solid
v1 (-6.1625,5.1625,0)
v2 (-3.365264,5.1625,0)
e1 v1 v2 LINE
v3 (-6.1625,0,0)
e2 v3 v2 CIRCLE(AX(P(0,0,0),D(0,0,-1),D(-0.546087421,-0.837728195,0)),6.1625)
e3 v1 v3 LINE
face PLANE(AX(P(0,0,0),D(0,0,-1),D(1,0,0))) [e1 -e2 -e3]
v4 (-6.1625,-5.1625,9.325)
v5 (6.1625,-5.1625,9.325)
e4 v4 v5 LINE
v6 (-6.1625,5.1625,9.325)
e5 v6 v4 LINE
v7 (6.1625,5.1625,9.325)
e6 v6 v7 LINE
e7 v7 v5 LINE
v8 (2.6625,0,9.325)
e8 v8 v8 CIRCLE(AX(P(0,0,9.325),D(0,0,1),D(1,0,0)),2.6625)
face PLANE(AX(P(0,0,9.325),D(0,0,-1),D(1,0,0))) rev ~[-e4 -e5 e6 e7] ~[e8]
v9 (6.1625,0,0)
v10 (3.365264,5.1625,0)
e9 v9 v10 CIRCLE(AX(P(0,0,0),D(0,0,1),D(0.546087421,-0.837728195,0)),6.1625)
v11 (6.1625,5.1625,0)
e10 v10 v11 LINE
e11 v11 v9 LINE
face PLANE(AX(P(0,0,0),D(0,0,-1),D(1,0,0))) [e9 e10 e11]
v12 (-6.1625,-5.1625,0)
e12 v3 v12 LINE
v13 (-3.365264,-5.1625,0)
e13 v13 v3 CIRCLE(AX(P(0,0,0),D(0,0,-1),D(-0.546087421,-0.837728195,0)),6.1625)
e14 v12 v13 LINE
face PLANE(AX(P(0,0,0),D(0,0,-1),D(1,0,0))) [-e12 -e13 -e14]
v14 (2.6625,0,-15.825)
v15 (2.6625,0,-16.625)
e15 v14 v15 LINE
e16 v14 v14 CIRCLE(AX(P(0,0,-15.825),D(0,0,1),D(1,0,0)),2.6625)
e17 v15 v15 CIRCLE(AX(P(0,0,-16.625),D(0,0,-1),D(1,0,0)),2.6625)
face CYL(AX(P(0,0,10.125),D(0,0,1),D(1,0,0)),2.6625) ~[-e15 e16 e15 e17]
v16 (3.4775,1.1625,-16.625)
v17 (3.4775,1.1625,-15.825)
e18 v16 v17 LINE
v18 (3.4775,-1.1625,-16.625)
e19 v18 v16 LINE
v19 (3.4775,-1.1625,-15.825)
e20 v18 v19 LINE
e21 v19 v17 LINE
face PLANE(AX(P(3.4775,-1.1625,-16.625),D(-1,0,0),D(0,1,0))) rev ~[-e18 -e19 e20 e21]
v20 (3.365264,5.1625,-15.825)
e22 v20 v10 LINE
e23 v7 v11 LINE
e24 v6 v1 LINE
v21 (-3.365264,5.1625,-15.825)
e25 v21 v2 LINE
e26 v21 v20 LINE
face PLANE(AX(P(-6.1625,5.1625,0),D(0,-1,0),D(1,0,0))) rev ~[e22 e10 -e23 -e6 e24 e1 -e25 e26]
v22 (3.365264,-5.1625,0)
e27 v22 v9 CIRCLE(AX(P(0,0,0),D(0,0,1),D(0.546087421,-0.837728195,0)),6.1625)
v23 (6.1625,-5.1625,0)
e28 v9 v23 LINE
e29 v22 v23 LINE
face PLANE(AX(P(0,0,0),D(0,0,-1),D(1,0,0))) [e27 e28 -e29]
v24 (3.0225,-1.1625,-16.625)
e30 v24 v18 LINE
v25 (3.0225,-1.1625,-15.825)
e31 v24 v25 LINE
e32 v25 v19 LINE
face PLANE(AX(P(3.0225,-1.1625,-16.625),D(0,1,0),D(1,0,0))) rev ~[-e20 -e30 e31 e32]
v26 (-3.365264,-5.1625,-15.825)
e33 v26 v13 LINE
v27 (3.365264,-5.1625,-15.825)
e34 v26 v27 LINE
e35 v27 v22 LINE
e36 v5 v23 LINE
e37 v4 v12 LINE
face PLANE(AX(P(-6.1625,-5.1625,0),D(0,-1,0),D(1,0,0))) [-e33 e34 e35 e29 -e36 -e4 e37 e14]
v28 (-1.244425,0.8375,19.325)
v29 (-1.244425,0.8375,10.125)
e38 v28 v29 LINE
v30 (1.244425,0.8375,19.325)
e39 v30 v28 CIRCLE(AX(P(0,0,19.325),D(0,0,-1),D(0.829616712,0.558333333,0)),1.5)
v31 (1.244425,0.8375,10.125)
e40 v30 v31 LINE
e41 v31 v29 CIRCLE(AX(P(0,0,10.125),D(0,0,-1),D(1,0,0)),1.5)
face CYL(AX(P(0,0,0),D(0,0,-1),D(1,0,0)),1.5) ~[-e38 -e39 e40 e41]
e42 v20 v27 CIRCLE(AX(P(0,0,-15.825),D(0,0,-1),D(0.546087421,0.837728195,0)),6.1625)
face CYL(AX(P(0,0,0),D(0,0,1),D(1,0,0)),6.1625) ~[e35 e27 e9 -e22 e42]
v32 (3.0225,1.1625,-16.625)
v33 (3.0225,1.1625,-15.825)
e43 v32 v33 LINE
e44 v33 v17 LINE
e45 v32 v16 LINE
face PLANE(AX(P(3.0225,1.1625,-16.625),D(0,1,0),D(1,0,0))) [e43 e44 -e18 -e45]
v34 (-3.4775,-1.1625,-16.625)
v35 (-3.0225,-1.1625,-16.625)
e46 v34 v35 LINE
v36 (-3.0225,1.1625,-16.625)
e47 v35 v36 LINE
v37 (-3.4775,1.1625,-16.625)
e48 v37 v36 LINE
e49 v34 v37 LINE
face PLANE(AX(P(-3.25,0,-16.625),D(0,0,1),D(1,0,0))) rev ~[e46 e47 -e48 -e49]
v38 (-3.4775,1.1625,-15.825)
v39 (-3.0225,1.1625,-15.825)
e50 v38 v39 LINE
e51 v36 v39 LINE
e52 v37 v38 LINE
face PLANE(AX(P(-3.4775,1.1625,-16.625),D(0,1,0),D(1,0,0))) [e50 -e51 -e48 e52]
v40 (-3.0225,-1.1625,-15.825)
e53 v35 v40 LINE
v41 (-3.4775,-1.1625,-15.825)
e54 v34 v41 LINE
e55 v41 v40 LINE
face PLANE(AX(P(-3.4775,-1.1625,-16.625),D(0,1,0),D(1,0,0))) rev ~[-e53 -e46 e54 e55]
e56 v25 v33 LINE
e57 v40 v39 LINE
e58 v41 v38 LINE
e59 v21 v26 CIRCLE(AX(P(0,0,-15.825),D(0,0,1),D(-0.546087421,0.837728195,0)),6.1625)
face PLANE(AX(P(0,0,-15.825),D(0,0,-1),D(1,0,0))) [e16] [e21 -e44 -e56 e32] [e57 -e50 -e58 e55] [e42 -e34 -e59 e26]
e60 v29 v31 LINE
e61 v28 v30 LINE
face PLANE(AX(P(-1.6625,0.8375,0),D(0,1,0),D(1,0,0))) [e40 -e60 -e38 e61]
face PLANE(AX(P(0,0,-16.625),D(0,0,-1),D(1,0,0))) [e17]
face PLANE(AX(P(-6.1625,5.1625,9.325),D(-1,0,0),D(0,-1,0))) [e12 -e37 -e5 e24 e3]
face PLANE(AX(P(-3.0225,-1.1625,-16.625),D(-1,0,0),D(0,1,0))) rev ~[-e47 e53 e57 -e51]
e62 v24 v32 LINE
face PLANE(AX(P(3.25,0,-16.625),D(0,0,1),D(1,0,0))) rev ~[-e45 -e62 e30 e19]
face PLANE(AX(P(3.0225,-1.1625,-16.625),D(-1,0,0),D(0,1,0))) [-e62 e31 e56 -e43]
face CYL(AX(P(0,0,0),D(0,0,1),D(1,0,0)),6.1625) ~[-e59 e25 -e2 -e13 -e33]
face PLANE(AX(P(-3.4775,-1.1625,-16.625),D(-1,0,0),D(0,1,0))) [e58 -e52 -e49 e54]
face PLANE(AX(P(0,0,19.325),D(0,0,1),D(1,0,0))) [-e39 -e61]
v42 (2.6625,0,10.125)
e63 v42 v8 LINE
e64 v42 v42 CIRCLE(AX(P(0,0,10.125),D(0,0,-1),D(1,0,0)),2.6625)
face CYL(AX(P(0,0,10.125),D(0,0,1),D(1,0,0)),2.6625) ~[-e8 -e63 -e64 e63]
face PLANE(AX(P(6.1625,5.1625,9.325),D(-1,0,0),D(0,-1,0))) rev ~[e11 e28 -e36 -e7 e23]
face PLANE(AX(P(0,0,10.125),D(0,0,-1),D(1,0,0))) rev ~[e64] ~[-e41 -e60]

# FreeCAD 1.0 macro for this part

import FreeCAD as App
import Part
import Sketcher

V = App.Vector
Q = App.Units.Quantity


def add_polygon(sketch, points):
    """Adds a closed chain of lines whose ends are joined by coincident constraints."""
    first, n = sketch.GeometryCount, len(points)
    for a, b in zip(points, points[1:] + points[:1]):
        sketch.addGeometry(Part.LineSegment(App.Vector(*a, 0), App.Vector(*b, 0)), False)
    for i in range(n):
        sketch.addConstraint(Sketcher.Constraint("Coincident", first + i, 2, first + (i + 1) % n, 1))

doc = App.newDocument("Part")
params = doc.addObject("Spreadsheet::Sheet", "Params")
for row, (alias, value) in enumerate([
    ("pad1_length", "19.325 mm"),
    ("sketch2_diameter", "3 mm"),
    ("pad2_length", "19.325 mm"),
    ("pad3_length", "16.625 mm"),
    ("pad4_length", "16.625 mm"),
    ("pad5_length", "26.75 mm"),
    ("pad6_length", "15.825 mm"),
    ("pad7_length", "15.825 mm"),
    ("pad8_length", "9.325 mm"),
], start=1):
    params.set(f"A{row}", alias)
    params.set(f"B{row}", "=" + value)
    params.setAlias(f"B{row}", alias)

body = doc.addObject("PartDesign::Body", "Body")

# Sketch on XY plane
sketch1 = doc.addObject("Sketcher::SketchObject", "Sketch")
body.addObject(sketch1)
sketch1.AttachmentSupport = (doc.XY_Plane, [""])
sketch1.MapMode = "FlatFace"
add_polygon(sketch1, [(-1.7, 4.2), (-1.7, 0.8), (1.7, 0.8), (1.7, 4.2)])  # lines 0-3
sketch1.addConstraint([
    Sketcher.Constraint("Vertical", 0),
    Sketcher.Constraint("Horizontal", 1),
    Sketcher.Constraint("Vertical", 2),
    Sketcher.Constraint("Horizontal", 3),
    Sketcher.Constraint("Equal", 3, 0),
    Sketcher.Constraint("DistanceX", 1, 1, 1, 2, Q("3.325 mm")),
    Sketcher.Constraint("DistanceX", 0, 2, -1, 1, Q("1.6625 mm")),
    Sketcher.Constraint("DistanceY", -1, 1, 0, 2, Q("0.8375 mm")),
])
pad1 = doc.addObject("PartDesign::Pad", "Pad")
body.addObject(pad1)
pad1.Profile = sketch1
pad1.setExpression("Length", "Params.pad1_length")
body2 = doc.addObject("PartDesign::Body", "Body001")

# Sketch on XY plane
sketch2 = doc.addObject("Sketcher::SketchObject", "Sketch001")
body2.addObject(sketch2)
sketch2.AttachmentSupport = (doc.getObject("XY_Plane001"), [""])
sketch2.MapMode = "FlatFace"
sketch2.addGeometry(Part.Circle(V(0, 0, 0), V(0, 0, 1), 1.5), False)
sketch2.addConstraint([
    Sketcher.Constraint("Coincident", 0, 3, -1, 1),
    Sketcher.Constraint("Diameter", 0, Q("3 mm")),
])
sketch2.setExpression("Constraints[1]", "Params.sketch2_diameter")
pad2 = doc.addObject("PartDesign::Pad", "Pad001")
body2.addObject(pad2)
pad2.Profile = sketch2
pad2.setExpression("Length", "Params.pad2_length")
doc.recompute()

boolean = doc.addObject("PartDesign::Boolean", "Boolean")
body2.addObject(boolean)
boolean.Type = "Cut"
boolean.addObjects([body])
body3 = doc.addObject("PartDesign::Body", "Body002")

# Sketch on XY plane
sketch3 = doc.addObject("Sketcher::SketchObject", "Sketch002")
body3.addObject(sketch3)
sketch3.AttachmentSupport = (doc.getObject("XY_Plane002"), [""])
sketch3.MapMode = "FlatFace"
sketch3.AttachmentOffset = App.Placement(V(0, 0, -16.625), App.Rotation())
add_polygon(sketch3, [(-3.48, 1.16), (-3.48, -1.16), (-3.02, -1.16), (-3.02, 1.16)])  # lines 0-3
sketch3.addConstraint([
    Sketcher.Constraint("Vertical", 0),
    Sketcher.Constraint("Horizontal", 1),
    Sketcher.Constraint("Vertical", 2),
    Sketcher.Constraint("Horizontal", 3),
    Sketcher.Constraint("DistanceX", 1, 1, 1, 2, Q("0.455 mm")),
    Sketcher.Constraint("DistanceY", 0, 2, 0, 1, Q("2.325 mm")),
    Sketcher.Constraint("DistanceX", 0, 2, -1, 1, Q("3.4775 mm")),
    Sketcher.Constraint("DistanceY", 0, 2, -1, 1, Q("1.1625 mm")),
])
pad3 = doc.addObject("PartDesign::Pad", "Pad002")
body3.addObject(pad3)
pad3.Profile = sketch3
pad3.setExpression("Length", "Params.pad3_length")
body4 = doc.addObject("PartDesign::Body", "Body003")
body4.AllowCompound = True

# Sketch on XY plane
sketch4 = doc.addObject("Sketcher::SketchObject", "Sketch003")
body4.addObject(sketch4)
sketch4.AttachmentSupport = (doc.getObject("XY_Plane003"), [""])
sketch4.MapMode = "FlatFace"
sketch4.AttachmentOffset = App.Placement(V(0, 0, -16.625), App.Rotation())
add_polygon(sketch4, [(3.02, 1.16), (3.02, -1.16), (3.48, -1.16), (3.48, 1.16)])  # lines 0-3
sketch4.addConstraint([
    Sketcher.Constraint("Vertical", 0),
    Sketcher.Constraint("Horizontal", 1),
    Sketcher.Constraint("Vertical", 2),
    Sketcher.Constraint("Horizontal", 3),
    Sketcher.Constraint("DistanceX", 1, 1, 1, 2, Q("0.455 mm")),
    Sketcher.Constraint("DistanceY", 0, 2, 0, 1, Q("2.325 mm")),
    Sketcher.Constraint("DistanceX", -1, 1, 0, 2, Q("3.0225 mm")),
    Sketcher.Constraint("DistanceY", 0, 2, -1, 1, Q("1.1625 mm")),
])
pad4 = doc.addObject("PartDesign::Pad", "Pad003")
body4.addObject(pad4)
pad4.Profile = sketch4
pad4.setExpression("Length", "Params.pad4_length")
doc.recompute()

boolean2 = doc.addObject("PartDesign::Boolean", "Boolean001")
body4.addObject(boolean2)
boolean2.Type = "Fuse"
boolean2.addObjects([body3])
body5 = doc.addObject("PartDesign::Body", "Body004")

# Sketch on XY plane
sketch5 = doc.addObject("Sketcher::SketchObject", "Sketch004")
body5.addObject(sketch5)
sketch5.AttachmentSupport = (doc.getObject("XY_Plane004"), [""])
sketch5.MapMode = "FlatFace"
sketch5.AttachmentOffset = App.Placement(V(0, 0, -10.125), App.Rotation())
sketch5.addGeometry(Part.Circle(V(0, 0, 0), V(0, 0, 1), 2.7), False)
sketch5.addConstraint([
    Sketcher.Constraint("Coincident", 0, 3, -1, 1),
    Sketcher.Constraint("Diameter", 0, Q("5.325 mm")),
])
pad5 = doc.addObject("PartDesign::Pad", "Pad004")
body5.addObject(pad5)
pad5.Profile = sketch5
pad5.setExpression("Length", "Params.pad5_length")
body6 = doc.addObject("PartDesign::Body", "Body005")

# Sketch on XY plane
sketch6 = doc.addObject("Sketcher::SketchObject", "Sketch005")
body6.addObject(sketch6)
sketch6.AttachmentSupport = (doc.getObject("XY_Plane005"), [""])
sketch6.MapMode = "FlatFace"
sketch6.addGeometry(Part.Circle(V(0, 0, 0), V(0, 0, 1), 6), False)
sketch6.addConstraint([
    Sketcher.Constraint("Coincident", 0, 3, -1, 1),
    Sketcher.Constraint("Diameter", 0, Q("12.325 mm")),
])
pad6 = doc.addObject("PartDesign::Pad", "Pad005")
body6.addObject(pad6)
pad6.Profile = sketch6
pad6.setExpression("Length", "Params.pad6_length")
body7 = doc.addObject("PartDesign::Body", "Body006")

# Sketch on XY plane
sketch7 = doc.addObject("Sketcher::SketchObject", "Sketch006")
body7.addObject(sketch7)
sketch7.AttachmentSupport = (doc.getObject("XY_Plane006"), [""])
sketch7.MapMode = "FlatFace"
add_polygon(sketch7, [(-6, 5), (-6, -5), (6, -5), (6, 5)])  # lines 0-3
sketch7.addConstraint([
    Sketcher.Constraint("Vertical", 0),
    Sketcher.Constraint("Horizontal", 1),
    Sketcher.Constraint("Vertical", 2),
    Sketcher.Constraint("Horizontal", 3),
    Sketcher.Constraint("Symmetric", 0, 2, 2, 2, -1, 1),
    Sketcher.Constraint("DistanceX", 1, 1, 1, 2, Q("12.325 mm")),
    Sketcher.Constraint("DistanceY", 0, 2, 0, 1, Q("10.325 mm")),
])
pad7 = doc.addObject("PartDesign::Pad", "Pad006")
body7.addObject(pad7)
pad7.Profile = sketch7
pad7.setExpression("Length", "Params.pad7_length")
doc.recompute()

boolean3 = doc.addObject("PartDesign::Boolean", "Boolean002")
body7.addObject(boolean3)
boolean3.Type = "Common"
boolean3.addObjects([body6])
body8 = doc.addObject("PartDesign::Body", "Body007")

# Sketch on XY plane
sketch8 = doc.addObject("Sketcher::SketchObject", "Sketch007")
body8.addObject(sketch8)
sketch8.AttachmentSupport = (doc.getObject("XY_Plane007"), [""])
sketch8.MapMode = "FlatFace"
sketch8.AttachmentOffset = App.Placement(V(0, 0, -9.325), App.Rotation())
add_polygon(sketch8, [(-6, 5), (-6, -5), (6, -5), (6, 5)])  # lines 0-3
sketch8.addConstraint([
    Sketcher.Constraint("Vertical", 0),
    Sketcher.Constraint("Horizontal", 1),
    Sketcher.Constraint("Vertical", 2),
    Sketcher.Constraint("Horizontal", 3),
    Sketcher.Constraint("Symmetric", 0, 2, 2, 2, -1, 1),
    Sketcher.Constraint("DistanceX", 1, 1, 1, 2, Q("12.325 mm")),
    Sketcher.Constraint("DistanceY", 0, 2, 0, 1, Q("10.325 mm")),
])
pad8 = doc.addObject("PartDesign::Pad", "Pad007")
body8.addObject(pad8)
pad8.Profile = sketch8
pad8.setExpression("Length", "Params.pad8_length")
doc.recompute()

boolean4 = doc.addObject("PartDesign::Boolean", "Boolean003")
body8.addObject(boolean4)
boolean4.Type = "Fuse"
boolean4.addObjects([body5])
doc.recompute()

boolean5 = doc.addObject("PartDesign::Boolean", "Boolean004")
body8.addObject(boolean5)
boolean5.Type = "Fuse"
boolean5.addObjects([body7])
body9 = doc.addObject("PartDesign::Body", "Body008")
doc.recompute()

body8.Placement = App.Placement(V(0, 0, 0), App.Rotation(V(1, 0, 0), 180))
boolean6 = doc.addObject("PartDesign::Boolean", "Boolean005")
body9.addObject(boolean6)
boolean6.Type = "Fuse"
boolean6.addObjects([body8])
doc.recompute()

boolean7 = doc.addObject("PartDesign::Boolean", "Boolean006")
body9.addObject(boolean7)
boolean7.Type = "Fuse"
boolean7.addObjects([body2])
doc.recompute()

boolean8 = doc.addObject("PartDesign::Boolean", "Boolean007")
body9.addObject(boolean8)
boolean8.Type = "Fuse"
boolean8.addObjects([body4])

doc.recompute()
